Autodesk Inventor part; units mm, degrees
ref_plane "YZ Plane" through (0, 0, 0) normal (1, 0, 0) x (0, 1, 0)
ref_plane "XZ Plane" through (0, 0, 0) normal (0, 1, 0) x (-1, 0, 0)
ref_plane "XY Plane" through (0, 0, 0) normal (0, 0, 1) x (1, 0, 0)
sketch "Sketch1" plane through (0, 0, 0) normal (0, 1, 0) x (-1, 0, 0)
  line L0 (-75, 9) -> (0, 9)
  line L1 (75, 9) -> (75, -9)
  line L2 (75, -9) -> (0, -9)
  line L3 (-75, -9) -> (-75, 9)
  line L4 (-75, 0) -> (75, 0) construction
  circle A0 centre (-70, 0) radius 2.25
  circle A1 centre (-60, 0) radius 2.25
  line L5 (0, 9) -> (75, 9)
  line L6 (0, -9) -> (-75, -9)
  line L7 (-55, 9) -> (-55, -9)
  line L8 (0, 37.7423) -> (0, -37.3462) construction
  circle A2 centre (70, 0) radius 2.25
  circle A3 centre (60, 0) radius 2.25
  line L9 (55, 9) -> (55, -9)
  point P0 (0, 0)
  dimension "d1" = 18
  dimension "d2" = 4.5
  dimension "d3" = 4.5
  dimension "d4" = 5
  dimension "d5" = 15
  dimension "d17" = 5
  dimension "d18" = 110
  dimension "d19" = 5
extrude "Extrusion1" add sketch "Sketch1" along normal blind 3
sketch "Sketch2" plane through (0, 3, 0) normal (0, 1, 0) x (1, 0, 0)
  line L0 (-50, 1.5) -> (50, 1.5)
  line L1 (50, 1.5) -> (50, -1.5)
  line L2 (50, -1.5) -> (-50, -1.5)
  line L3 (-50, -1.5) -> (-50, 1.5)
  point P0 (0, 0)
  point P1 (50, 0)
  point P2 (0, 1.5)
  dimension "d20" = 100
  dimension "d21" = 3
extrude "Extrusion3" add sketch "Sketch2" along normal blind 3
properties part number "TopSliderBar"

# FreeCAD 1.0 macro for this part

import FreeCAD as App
import Part
import Sketcher

V = App.Vector
Q = App.Units.Quantity


def add_polygon(sketch, points):
    """Adds a closed chain of lines whose ends are joined by coincident constraints."""
    first, n = sketch.GeometryCount, len(points)
    for a, b in zip(points, points[1:] + points[:1]):
        sketch.addGeometry(Part.LineSegment(App.Vector(*a, 0), App.Vector(*b, 0)), False)
    for i in range(n):
        sketch.addConstraint(Sketcher.Constraint("Coincident", first + i, 2, first + (i + 1) % n, 1))

doc = App.newDocument("Part")
body = doc.addObject("PartDesign::Body", "Body")

# Sketch on XZ plane
sketch1 = body.newObject("Sketcher::SketchObject", "Sketch")
sketch1.AttachmentSupport = (doc.getObject("XZ_Plane"), [""])
sketch1.MapMode = "FlatFace"
add_polygon(sketch1, [(75, 9), (75, -9), (-75, -9), (-75, 9)])  # lines 0-3
sketch1.addGeometry(Part.Circle(V(70, 0, 0), V(0, 0, 1), 2.2), False)  # 4
sketch1.addGeometry(Part.Circle(V(60, 0, 0), V(0, 0, 1), 2.2), False)  # 5
sketch1.addGeometry(Part.Circle(V(-70, 0, 0), V(0, 0, 1), 2.2), False)  # 6
sketch1.addGeometry(Part.Circle(V(-60, 0, 0), V(0, 0, 1), 2.2), False)  # 7
sketch1.addConstraint([
    Sketcher.Constraint("Vertical", 0),
    Sketcher.Constraint("Horizontal", 1),
    Sketcher.Constraint("Vertical", 2),
    Sketcher.Constraint("Horizontal", 3),
    Sketcher.Constraint("Equal", 4, 5),
    Sketcher.Constraint("Equal", 5, 6),
    Sketcher.Constraint("Equal", 6, 7),
    Sketcher.Constraint("Symmetric", 4, 3, 6, 3, -1, 1),
    Sketcher.Constraint("Symmetric", 5, 3, 7, 3, -1, 1),
    Sketcher.Constraint("Symmetric", 0, 2, 2, 2, -1, 1),
    Sketcher.Constraint("PointOnObject", 4, 3, -1),
    Sketcher.Constraint("PointOnObject", 5, 3, -1),
    Sketcher.Constraint("Diameter", 4, Q("4.5 mm")),
    Sketcher.Constraint("DistanceY", 0, 2, 0, 1, Q("18 mm")),
    Sketcher.Constraint("DistanceX", 4, 3, 0, 2, Q("5 mm")),
    Sketcher.Constraint("DistanceX", 5, 3, 0, 2, Q("15 mm")),
    Sketcher.Constraint("DistanceX", 1, 2, 1, 1, Q("150 mm")),
])
pad1 = body.newObject("PartDesign::Pad", "Pad")
pad1.Profile = sketch1
pad1.Length = 3
pad1.Reversed = True

# Sketch on XZ plane
sketch2 = body.newObject("Sketcher::SketchObject", "Sketch001")
sketch2.AttachmentSupport = (doc.getObject("XZ_Plane"), [""])
sketch2.MapMode = "FlatFace"
sketch2.AttachmentOffset = App.Placement(V(0, 0, -3), App.Rotation())
add_polygon(sketch2, [(50, -1.5), (-50, -1.5), (-50, 1.5), (50, 1.5)])  # lines 0-3
sketch2.addConstraint([
    Sketcher.Constraint("Horizontal", 0),
    Sketcher.Constraint("Vertical", 1),
    Sketcher.Constraint("Horizontal", 2),
    Sketcher.Constraint("Vertical", 3),
    Sketcher.Constraint("Symmetric", 0, 2, 2, 2, -1, 1),
    Sketcher.Constraint("DistanceX", 0, 2, 0, 1, Q("100 mm")),
    Sketcher.Constraint("DistanceY", 1, 1, 1, 2, Q("3 mm")),
])
pad2 = body.newObject("PartDesign::Pad", "Pad001")
pad2.Profile = sketch2
pad2.Length = 3
pad2.Reversed = True

doc.recompute()
